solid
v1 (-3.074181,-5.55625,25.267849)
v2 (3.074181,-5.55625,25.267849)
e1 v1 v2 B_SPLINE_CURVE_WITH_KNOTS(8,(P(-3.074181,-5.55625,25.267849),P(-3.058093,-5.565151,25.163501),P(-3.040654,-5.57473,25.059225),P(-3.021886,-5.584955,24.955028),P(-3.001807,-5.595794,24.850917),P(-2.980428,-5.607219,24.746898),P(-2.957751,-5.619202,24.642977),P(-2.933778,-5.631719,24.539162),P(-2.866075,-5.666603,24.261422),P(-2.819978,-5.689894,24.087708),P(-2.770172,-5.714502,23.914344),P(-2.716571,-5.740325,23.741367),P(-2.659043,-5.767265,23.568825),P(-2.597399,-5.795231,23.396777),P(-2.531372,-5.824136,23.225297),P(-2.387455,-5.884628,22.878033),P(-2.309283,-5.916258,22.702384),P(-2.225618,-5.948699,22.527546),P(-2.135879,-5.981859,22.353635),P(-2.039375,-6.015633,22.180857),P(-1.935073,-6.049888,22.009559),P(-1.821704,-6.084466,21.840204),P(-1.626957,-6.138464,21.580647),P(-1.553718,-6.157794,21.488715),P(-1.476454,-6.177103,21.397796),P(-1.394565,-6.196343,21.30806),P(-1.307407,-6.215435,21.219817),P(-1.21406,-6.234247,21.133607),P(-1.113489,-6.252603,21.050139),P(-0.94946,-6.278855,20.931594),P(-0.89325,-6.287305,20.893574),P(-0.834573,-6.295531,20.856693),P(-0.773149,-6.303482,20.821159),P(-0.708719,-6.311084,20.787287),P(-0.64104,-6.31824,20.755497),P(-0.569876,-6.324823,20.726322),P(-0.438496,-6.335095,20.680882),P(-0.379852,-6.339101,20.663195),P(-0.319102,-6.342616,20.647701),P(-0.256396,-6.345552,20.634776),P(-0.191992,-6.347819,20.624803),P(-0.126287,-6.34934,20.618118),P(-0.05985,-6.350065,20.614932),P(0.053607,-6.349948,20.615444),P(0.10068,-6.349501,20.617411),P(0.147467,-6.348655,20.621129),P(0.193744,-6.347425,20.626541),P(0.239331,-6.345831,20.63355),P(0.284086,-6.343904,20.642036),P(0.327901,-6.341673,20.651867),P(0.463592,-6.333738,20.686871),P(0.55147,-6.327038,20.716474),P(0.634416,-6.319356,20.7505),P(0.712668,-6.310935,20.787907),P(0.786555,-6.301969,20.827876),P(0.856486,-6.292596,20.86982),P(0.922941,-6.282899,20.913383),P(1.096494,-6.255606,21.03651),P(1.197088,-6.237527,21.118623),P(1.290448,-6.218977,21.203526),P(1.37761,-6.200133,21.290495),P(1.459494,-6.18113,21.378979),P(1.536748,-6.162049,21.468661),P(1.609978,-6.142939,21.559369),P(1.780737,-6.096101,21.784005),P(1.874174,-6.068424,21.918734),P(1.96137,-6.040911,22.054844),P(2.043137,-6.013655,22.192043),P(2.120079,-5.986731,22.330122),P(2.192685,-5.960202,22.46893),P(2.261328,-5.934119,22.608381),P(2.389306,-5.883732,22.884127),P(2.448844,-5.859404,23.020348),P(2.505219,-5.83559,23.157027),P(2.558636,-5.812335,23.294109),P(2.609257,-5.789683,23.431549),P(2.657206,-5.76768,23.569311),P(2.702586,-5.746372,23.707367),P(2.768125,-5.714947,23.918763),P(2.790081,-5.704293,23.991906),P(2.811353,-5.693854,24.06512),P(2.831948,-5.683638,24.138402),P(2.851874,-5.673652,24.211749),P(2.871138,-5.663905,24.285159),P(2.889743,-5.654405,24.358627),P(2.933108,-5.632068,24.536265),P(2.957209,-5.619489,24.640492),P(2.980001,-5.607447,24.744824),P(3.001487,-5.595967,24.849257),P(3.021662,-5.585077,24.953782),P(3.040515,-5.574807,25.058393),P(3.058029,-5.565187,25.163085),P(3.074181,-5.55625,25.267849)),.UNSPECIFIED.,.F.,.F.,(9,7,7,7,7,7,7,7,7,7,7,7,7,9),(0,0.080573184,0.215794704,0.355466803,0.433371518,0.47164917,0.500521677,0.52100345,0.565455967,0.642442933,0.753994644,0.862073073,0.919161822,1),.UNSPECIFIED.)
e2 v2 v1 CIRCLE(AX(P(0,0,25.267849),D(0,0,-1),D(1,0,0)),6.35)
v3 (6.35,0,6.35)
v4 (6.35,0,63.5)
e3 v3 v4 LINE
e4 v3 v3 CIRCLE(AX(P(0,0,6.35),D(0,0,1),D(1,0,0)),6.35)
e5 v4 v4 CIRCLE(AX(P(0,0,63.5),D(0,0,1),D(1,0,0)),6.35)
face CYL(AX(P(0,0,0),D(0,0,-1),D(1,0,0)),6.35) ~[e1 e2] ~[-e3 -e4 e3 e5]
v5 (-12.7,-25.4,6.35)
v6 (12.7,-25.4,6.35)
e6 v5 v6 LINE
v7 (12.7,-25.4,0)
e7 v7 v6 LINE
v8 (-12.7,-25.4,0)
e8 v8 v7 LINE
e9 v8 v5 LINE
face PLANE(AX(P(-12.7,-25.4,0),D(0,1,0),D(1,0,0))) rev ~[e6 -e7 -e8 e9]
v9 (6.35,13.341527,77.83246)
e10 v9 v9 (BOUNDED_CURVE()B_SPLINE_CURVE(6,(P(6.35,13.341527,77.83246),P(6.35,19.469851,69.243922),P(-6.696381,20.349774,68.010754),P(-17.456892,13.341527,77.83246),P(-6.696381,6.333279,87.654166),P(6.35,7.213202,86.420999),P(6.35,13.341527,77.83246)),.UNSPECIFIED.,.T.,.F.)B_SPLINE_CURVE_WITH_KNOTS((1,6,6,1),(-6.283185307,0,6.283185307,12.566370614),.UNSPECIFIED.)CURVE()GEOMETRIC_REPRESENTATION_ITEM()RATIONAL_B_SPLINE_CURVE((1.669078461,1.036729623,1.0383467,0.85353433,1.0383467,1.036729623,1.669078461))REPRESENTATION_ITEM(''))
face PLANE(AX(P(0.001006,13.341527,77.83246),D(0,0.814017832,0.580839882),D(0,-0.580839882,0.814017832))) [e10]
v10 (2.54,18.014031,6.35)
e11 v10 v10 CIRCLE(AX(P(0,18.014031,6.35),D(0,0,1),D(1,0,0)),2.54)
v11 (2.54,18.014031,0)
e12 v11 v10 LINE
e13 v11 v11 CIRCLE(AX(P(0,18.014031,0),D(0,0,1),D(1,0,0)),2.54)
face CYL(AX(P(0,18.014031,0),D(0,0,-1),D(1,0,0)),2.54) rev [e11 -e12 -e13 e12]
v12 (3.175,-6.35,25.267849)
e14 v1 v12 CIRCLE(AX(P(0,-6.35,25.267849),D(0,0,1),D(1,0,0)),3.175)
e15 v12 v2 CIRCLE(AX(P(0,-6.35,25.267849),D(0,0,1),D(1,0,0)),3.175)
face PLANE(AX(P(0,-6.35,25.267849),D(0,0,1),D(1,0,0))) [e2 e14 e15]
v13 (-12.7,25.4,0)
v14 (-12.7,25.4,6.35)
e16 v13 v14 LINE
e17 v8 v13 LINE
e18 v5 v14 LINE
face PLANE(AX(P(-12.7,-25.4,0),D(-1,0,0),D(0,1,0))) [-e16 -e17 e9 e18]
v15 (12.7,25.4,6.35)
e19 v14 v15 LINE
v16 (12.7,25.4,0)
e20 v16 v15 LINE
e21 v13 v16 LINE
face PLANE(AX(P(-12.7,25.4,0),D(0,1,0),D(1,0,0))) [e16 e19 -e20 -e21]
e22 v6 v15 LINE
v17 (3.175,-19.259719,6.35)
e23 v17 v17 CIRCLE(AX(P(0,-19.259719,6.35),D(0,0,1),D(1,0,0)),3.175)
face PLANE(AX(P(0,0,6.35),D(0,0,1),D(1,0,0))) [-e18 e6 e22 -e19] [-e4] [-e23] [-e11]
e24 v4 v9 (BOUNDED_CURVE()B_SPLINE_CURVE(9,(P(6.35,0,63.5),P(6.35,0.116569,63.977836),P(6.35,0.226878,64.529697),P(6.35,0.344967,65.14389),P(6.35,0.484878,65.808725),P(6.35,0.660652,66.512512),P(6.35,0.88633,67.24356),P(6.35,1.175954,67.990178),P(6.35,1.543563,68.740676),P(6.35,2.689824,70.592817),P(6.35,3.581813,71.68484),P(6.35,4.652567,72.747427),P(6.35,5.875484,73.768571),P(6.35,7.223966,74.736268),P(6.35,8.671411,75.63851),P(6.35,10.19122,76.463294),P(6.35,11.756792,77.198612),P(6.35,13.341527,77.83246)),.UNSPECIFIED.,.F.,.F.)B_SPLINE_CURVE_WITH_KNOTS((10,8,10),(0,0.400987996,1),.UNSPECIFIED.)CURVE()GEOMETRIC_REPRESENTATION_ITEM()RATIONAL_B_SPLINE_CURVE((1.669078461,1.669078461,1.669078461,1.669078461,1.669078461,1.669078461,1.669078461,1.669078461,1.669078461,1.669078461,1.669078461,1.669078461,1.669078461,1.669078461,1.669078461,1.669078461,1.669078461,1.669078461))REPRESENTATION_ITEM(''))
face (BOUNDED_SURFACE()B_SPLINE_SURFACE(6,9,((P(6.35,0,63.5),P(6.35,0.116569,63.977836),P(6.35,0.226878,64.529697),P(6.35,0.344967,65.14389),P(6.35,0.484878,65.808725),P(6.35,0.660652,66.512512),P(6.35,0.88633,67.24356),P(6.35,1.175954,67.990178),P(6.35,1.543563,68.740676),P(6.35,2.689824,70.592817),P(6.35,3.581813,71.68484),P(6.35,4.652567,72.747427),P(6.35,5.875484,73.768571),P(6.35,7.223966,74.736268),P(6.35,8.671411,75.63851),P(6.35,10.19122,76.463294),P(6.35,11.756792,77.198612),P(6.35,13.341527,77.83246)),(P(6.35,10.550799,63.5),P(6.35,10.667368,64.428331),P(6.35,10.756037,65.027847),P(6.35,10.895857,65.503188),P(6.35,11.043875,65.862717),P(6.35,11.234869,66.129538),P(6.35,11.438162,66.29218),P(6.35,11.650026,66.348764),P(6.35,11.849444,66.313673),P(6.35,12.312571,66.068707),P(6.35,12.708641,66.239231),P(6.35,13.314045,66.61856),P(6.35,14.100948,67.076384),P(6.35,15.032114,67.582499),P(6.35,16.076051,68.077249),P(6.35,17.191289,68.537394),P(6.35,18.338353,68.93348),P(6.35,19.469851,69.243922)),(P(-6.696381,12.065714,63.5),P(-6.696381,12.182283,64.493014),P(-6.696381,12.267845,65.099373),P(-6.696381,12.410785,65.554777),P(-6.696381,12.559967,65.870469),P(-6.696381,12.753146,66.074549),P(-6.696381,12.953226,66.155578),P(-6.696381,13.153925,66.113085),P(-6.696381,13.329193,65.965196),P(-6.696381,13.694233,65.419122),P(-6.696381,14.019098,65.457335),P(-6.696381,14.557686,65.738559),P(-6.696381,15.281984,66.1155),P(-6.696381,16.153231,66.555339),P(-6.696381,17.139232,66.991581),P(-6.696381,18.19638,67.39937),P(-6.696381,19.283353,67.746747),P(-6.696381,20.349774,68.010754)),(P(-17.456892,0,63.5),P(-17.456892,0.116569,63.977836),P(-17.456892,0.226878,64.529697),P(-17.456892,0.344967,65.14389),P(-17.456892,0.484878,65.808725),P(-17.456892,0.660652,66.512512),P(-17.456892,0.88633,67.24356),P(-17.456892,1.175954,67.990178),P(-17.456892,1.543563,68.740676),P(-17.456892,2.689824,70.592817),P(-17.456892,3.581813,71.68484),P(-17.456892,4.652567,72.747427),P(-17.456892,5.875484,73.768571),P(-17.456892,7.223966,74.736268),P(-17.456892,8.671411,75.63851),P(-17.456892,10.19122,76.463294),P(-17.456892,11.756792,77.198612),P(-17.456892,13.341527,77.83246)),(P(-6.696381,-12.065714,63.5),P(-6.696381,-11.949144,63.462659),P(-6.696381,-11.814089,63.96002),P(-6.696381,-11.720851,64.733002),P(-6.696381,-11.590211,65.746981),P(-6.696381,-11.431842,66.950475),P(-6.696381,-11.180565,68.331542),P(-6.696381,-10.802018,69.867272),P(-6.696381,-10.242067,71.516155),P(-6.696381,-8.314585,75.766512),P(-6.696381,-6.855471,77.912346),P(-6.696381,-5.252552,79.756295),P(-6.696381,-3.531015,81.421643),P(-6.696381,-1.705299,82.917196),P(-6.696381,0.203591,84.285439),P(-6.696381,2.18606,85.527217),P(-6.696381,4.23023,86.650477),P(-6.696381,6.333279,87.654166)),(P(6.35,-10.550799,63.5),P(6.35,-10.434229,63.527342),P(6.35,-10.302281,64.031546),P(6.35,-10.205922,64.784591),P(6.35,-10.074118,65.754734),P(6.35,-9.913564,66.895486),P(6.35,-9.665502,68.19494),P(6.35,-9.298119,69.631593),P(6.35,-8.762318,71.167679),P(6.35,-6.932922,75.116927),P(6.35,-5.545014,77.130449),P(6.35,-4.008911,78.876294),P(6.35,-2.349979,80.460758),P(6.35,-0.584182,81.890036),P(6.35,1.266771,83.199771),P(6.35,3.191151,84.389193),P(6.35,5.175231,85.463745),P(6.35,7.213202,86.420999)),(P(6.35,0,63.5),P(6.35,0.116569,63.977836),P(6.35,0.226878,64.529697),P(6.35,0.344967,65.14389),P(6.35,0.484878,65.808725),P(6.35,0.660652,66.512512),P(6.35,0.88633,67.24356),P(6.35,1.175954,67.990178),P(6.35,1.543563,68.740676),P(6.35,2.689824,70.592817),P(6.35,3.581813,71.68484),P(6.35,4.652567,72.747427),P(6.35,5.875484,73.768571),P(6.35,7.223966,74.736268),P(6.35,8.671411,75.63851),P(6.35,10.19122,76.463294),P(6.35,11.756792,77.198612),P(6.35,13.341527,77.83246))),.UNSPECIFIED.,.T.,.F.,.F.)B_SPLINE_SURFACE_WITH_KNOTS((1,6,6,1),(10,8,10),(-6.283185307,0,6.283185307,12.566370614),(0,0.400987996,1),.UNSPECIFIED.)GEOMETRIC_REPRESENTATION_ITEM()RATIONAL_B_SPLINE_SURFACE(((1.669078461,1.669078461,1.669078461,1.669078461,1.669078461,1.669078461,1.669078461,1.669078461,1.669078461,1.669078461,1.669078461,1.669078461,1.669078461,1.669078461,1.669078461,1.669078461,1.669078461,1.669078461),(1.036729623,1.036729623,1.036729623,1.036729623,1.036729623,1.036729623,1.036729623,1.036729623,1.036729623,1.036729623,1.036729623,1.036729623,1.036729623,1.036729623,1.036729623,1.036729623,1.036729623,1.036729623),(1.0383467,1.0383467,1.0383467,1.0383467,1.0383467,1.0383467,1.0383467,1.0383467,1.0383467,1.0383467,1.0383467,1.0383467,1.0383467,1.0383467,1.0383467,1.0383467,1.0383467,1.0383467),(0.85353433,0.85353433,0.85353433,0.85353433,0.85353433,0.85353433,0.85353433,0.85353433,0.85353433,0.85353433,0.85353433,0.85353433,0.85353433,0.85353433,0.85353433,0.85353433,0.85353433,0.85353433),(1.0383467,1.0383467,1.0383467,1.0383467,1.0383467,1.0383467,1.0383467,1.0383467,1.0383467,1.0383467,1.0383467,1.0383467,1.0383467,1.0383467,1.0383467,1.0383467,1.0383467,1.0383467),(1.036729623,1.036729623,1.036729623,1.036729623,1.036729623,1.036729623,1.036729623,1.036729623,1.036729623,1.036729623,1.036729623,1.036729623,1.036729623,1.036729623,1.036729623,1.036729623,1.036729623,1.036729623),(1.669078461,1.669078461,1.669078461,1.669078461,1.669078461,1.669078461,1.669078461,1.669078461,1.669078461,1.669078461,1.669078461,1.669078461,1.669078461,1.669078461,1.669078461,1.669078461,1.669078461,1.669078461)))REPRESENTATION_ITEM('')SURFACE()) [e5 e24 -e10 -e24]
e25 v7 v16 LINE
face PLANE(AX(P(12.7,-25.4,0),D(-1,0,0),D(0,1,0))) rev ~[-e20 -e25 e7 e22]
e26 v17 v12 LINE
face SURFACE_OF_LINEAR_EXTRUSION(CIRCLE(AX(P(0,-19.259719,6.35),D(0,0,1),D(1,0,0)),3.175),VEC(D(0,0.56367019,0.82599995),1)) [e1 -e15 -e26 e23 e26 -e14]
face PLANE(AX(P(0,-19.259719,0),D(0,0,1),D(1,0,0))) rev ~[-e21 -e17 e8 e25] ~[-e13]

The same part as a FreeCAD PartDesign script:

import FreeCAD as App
import Part
import Sketcher

V = App.Vector
Q = App.Units.Quantity


def add_polygon(sketch, points):
    """Adds a closed chain of lines whose ends are joined by coincident constraints."""
    first, n = sketch.GeometryCount, len(points)
    for a, b in zip(points, points[1:] + points[:1]):
        sketch.addGeometry(Part.LineSegment(App.Vector(*a, 0), App.Vector(*b, 0)), False)
    for i in range(n):
        sketch.addConstraint(Sketcher.Constraint("Coincident", first + i, 2, first + (i + 1) % n, 1))

doc = App.newDocument("Part")
body = doc.addObject("PartDesign::Body", "Body")

# Sketch on XY plane
sketch1 = body.newObject("Sketcher::SketchObject", "Sketch")
sketch1.AttachmentSupport = (doc.getObject("XY_Plane"), [""])
sketch1.MapMode = "FlatFace"
add_polygon(sketch1, [(-12.7, 25.4), (-12.7, -25.4), (12.7, -25.4), (12.7, 25.4)])  # lines 0-3
sketch1.addGeometry(Part.Circle(V(0, -19.3, 0), V(0, 0, 1), 3.2), False)  # 4
sketch1.addGeometry(Part.Circle(V(0, 0, 0), V(0, 0, 1), 6.3), False)  # 5
sketch1.addGeometry(Part.Circle(V(0, 18, 0), V(0, 0, 1), 2.5), False)  # 6
sketch1.addConstraint(Sketcher.Constraint("Vertical", 0))
sketch1.addConstraint(Sketcher.Constraint("Horizontal", 1))
sketch1.addConstraint(Sketcher.Constraint("Vertical", 2))
sketch1.addConstraint(Sketcher.Constraint("Horizontal", 3))
sketch1.addConstraint(Sketcher.Constraint("Coincident", 5, 3, -1, 1))
sketch1.addConstraint(Sketcher.Constraint("Symmetric", 0, 2, 2, 2, -1, 1))
sketch1.addConstraint(Sketcher.Constraint("PointOnObject", 4, 3, -2))
sketch1.addConstraint(Sketcher.Constraint("PointOnObject", 6, 3, -2))
sketch1.addConstraint(Sketcher.Constraint("Diameter", 5, Q("0.5 in")))
sketch1.addConstraint(Sketcher.Constraint("Diameter", 6, Q("0.2 in")))
sketch1.addConstraint(Sketcher.Constraint("Diameter", 4, Q("0.25 in")))
sketch1.addConstraint(Sketcher.Constraint("DistanceX", 1, 1, 1, 2, Q("1 in")))
sketch1.addConstraint(Sketcher.Constraint("DistanceY", 0, 2, 0, 1, Q("2 in")))
sketch1.addConstraint(Sketcher.Constraint("DistanceY", 4, 3, -1, 1, Q("19.259719 mm")))
sketch1.addConstraint(Sketcher.Constraint("DistanceY", -1, 1, 6, 3, Q("18.014031 mm")))
pad1 = body.newObject("PartDesign::Pad", "Pad")
pad1.Profile = sketch1
pad1.Length = Q("0.25 in")

# Sketch on XY plane
sketch2 = body.newObject("Sketcher::SketchObject", "Sketch001")
sketch2.AttachmentSupport = (doc.getObject("XY_Plane"), [""])
sketch2.MapMode = "FlatFace"
sketch2.addGeometry(Part.Circle(V(0, 0, 0), V(0, 0, 1), 6), False)
sketch2.addConstraint(Sketcher.Constraint("Coincident", 0, 3, -1, 1))
sketch2.addConstraint(Sketcher.Constraint("Diameter", 0, Q("0.5 in")))
pad2 = body.newObject("PartDesign::Pad", "Pad001")
pad2.Profile = sketch2
pad2.Length = Q("2.5 in")

# Sketch on XY plane
sketch3 = body.newObject("Sketcher::SketchObject", "Sketch002")
sketch3.AttachmentSupport = (doc.getObject("XY_Plane"), [""])
sketch3.MapMode = "FlatFace"
sketch3.addGeometry(Part.Circle(V(0, -19.3, 0), V(0, 0, 1), 3.2), False)
sketch3.addConstraint(Sketcher.Constraint("PointOnObject", 0, 3, -2))
sketch3.addConstraint(Sketcher.Constraint("Diameter", 0, Q("0.25 in")))
sketch3.addConstraint(Sketcher.Constraint("DistanceY", 0, 3, -1, 1, Q("19.259719 mm")))
pad3 = body.newObject("PartDesign::Pad", "Pad002")
pad3.Profile = sketch3
pad3.Length = Q("0.25 in")

# Sketch on XY plane
sketch4 = body.newObject("Sketcher::SketchObject", "Sketch003")
sketch4.AttachmentSupport = (doc.getObject("XY_Plane"), [""])
sketch4.MapMode = "FlatFace"
sketch4.AttachmentOffset = App.Placement(V(0, 0, 2.5 * 25.4), App.Rotation())
sketch4.addGeometry(Part.Circle(V(0, 0, 0), V(0, 0, 1), 6), False)
sketch4.addConstraint(Sketcher.Constraint("Coincident", 0, 3, -1, 1))
sketch4.addConstraint(Sketcher.Constraint("Diameter", 0, Q("0.5 in")))

# Sketch on YZ plane
sketch5 = body.newObject("Sketcher::SketchObject", "Sketch004")
sketch5.AttachmentSupport = (doc.getObject("YZ_Plane"), [""])
sketch5.MapMode = "FlatFace"
sketch5.addGeometry(Part.BSplineCurve([V(0, 63.5, 0), V(0.349708, 64.933509, 0), V(1.03447, 70.723692, 0), V(8.587322, 75.930916, 0), V(13.341527, 77.83246, 0)], [4, 1, 4], [0, 0.400987996, 1], False, 3, [1, 1, 1, 1, 1], False), False)
sketch5.addConstraint(Sketcher.Constraint("Block", 0))
doc.recompute()

additivepipe = body.newObject("PartDesign::AdditivePipe", "AdditivePipe")
additivepipe.Profile = sketch4
additivepipe.Spine = (sketch5, ["Edge1"])

# Sketch on XY plane
sketch6 = body.newObject("Sketcher::SketchObject", "Sketch005")
sketch6.AttachmentSupport = (doc.getObject("XY_Plane"), [""])
sketch6.MapMode = "FlatFace"
sketch6.AttachmentOffset = App.Placement(V(0, 0, 0.25 * 25.4), App.Rotation())
sketch6.addGeometry(Part.Circle(V(0, -19.3, 0), V(0, 0, 1), 3.2), False)
sketch6.addConstraint(Sketcher.Constraint("PointOnObject", 0, 3, -2))
sketch6.addConstraint(Sketcher.Constraint("Diameter", 0, Q("0.25 in")))
sketch6.addConstraint(Sketcher.Constraint("DistanceY", 0, 3, -1, 1, Q("19.259719 mm")))

# Sketch on an angled plane
sketch7 = body.newObject("Sketcher::SketchObject", "Sketch006")
sketch7.Placement = App.Placement(V(0, -16.096949, 10.98471), App.Rotation(V(0, 0.56367019, 0.82599995), V(1, 0, 0), V(0, 0.82599995, -0.56367019), "ZXY"))
sketch7.addGeometry(Part.LineSegment(V(-6, 0, 0), V(17, 0, 0)), False)
sketch7.addConstraint(Sketcher.Constraint("Horizontal", 0))
sketch7.addConstraint(Sketcher.Constraint("PointOnObject", 0, 1, -1))
sketch7.addConstraint(Sketcher.Constraint("DistanceX", 0, 1, 0, 2, Q("22.902966 mm")))
sketch7.addConstraint(Sketcher.Constraint("DistanceX", 0, 1, -1, 1, Q("5.61103 mm")))
doc.recompute()

additivepipe2 = body.newObject("PartDesign::AdditivePipe", "AdditivePipe001")
additivepipe2.Profile = sketch6
additivepipe2.Spine = (sketch7, ["Edge1"])

doc.recompute()
